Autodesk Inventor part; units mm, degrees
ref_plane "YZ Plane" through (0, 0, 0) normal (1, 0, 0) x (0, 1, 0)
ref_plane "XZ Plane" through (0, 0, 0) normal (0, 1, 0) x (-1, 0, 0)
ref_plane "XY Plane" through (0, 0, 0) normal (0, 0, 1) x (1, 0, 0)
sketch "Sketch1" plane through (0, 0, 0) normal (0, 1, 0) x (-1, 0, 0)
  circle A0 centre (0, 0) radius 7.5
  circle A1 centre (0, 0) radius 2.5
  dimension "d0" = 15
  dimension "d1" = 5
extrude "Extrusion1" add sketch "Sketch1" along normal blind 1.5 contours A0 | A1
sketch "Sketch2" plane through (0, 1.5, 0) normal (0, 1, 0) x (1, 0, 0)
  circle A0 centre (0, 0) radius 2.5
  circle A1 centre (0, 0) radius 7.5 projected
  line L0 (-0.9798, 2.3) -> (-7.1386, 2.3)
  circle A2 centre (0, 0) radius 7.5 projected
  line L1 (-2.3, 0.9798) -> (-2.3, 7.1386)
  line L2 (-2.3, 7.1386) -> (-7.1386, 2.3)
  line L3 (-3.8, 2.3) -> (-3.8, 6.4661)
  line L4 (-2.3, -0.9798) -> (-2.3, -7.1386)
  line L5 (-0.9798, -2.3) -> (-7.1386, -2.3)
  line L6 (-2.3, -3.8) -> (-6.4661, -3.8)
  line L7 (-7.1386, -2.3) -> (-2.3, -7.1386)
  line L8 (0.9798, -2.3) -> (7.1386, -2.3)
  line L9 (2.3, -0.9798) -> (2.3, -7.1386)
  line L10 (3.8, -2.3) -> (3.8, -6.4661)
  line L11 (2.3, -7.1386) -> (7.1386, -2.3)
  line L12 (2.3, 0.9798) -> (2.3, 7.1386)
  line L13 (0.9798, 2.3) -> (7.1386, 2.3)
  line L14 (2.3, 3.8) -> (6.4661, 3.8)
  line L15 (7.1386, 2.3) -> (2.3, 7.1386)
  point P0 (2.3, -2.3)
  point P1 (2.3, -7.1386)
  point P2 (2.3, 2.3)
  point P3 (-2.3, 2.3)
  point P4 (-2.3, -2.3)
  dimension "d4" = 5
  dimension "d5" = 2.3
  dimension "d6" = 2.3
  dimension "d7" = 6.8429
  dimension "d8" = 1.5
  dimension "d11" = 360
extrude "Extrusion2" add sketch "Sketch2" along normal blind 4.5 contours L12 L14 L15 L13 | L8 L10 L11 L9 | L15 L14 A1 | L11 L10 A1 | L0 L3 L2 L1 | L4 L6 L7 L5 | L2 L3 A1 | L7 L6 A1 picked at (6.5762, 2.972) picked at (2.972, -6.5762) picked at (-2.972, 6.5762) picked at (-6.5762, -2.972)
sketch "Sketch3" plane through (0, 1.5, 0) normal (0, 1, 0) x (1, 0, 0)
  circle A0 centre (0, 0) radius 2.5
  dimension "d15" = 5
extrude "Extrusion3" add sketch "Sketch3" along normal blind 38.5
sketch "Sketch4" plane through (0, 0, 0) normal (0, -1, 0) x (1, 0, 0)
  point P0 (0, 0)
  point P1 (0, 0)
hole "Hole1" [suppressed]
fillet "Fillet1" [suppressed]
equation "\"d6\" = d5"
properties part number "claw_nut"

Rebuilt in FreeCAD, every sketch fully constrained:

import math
import FreeCAD as App
import Part
import Sketcher

V = App.Vector
Q = App.Units.Quantity

doc = App.newDocument("Part")
params = doc.addObject("Spreadsheet::Sheet", "Params")
for row, (alias, value) in enumerate([
    ("sketch1_diameter", "15 mm"),
    ("pad1_length", "1.5 mm"),
    ("sketch2_width", "1.5 mm"),
    ("sketch2_radius", "7.5 mm"),
    ("pad2_length", "4.5 mm"),
    ("sketch3_diameter", "5 mm"),
    ("pad3_length", "38.5 mm"),
], start=1):
    params.set(f"A{row}", alias)
    params.set(f"B{row}", "=" + value)
    params.setAlias(f"B{row}", alias)

body = doc.addObject("PartDesign::Body", "Body")

sketch1 = body.newObject("Sketcher::SketchObject", "Sketch")
sketch1.AttachmentSupport = (doc.getObject("XZ_Plane"), [""])
sketch1.MapMode = "FlatFace"
sketch1.addGeometry(Part.Circle(V(0, 0, 0), V(0, 0, 1), 8), False)
sketch1.addConstraint([
    Sketcher.Constraint("Coincident", 0, 3, -1, 1),
    Sketcher.Constraint("Diameter", 0, Q("15 mm")),
])
sketch1.setExpression("Constraints[1]", "Params.sketch1_diameter")
pad1 = body.newObject("PartDesign::Pad", "Pad")
pad1.Profile = sketch1
pad1.setExpression("Length", "Params.pad1_length")
pad1.Reversed = True

sketch2 = body.newObject("Sketcher::SketchObject", "Sketch001")
sketch2.AttachmentSupport = (doc.getObject("XZ_Plane"), [""])
sketch2.MapMode = "FlatFace"
sketch2.AttachmentOffset = App.Placement(V(0, 0, -1.5), App.Rotation())
sketch2.addGeometry([
    Part.LineSegment(V(2.3, -3.8, 0), V(2.3, -2.3, 0)),
    Part.LineSegment(V(2.3, -2.3, 0), V(7.1, -2.3, 0)),
    Part.ArcOfCircle(Part.Circle(V(0, 0, 0), V(0, 0, 1), 7.5), math.radians(-30.44), math.radians(-17.86)),
    Part.LineSegment(V(6.5, -3.8, 0), V(2.3, -3.8, 0)),
    Part.LineSegment(V(3.8, 2.3, 0), V(2.3, 2.3, 0)),
    Part.LineSegment(V(2.3, 2.3, 0), V(2.3, 7.1, 0)),
    Part.ArcOfCircle(Part.Circle(V(0, 0, 0), V(0, 0, 1), 7.5), math.radians(59.56), math.radians(72.14)),
    Part.LineSegment(V(3.8, 6.5, 0), V(3.8, 2.3, 0)),
    Part.LineSegment(V(-3.8, -2.3, 0), V(-2.3, -2.3, 0)),
    Part.LineSegment(V(-2.3, -2.3, 0), V(-2.3, -7.1, 0)),
    Part.ArcOfCircle(Part.Circle(V(0, 0, 0), V(0, 0, 1), 7.5), math.radians(-120.44), math.radians(-107.86)),
    Part.LineSegment(V(-3.8, -6.5, 0), V(-3.8, -2.3, 0)),
    Part.LineSegment(V(-2.3, 3.8, 0), V(-2.3, 2.3, 0)),
    Part.LineSegment(V(-2.3, 2.3, 0), V(-7.1, 2.3, 0)),
    Part.ArcOfCircle(Part.Circle(V(0, 0, 0), V(0, 0, 1), 7.5), math.radians(149.56), math.radians(162.14)),
    Part.LineSegment(V(-6.5, 3.8, 0), V(-2.3, 3.8, 0)),
], False)
sketch2.addConstraint([
    Sketcher.Constraint("Coincident", 0, 2, 1, 1),
    Sketcher.Constraint("Coincident", 1, 2, 2, 2),
    Sketcher.Constraint("Coincident", 2, 1, 3, 1),
    Sketcher.Constraint("Coincident", 3, 2, 0, 1),
    Sketcher.Constraint("Coincident", 4, 2, 5, 1),
    Sketcher.Constraint("Coincident", 5, 2, 6, 2),
    Sketcher.Constraint("Coincident", 6, 1, 7, 1),
    Sketcher.Constraint("Coincident", 7, 2, 4, 1),
    Sketcher.Constraint("Coincident", 8, 2, 9, 1),
    Sketcher.Constraint("Coincident", 9, 2, 10, 2),
    Sketcher.Constraint("Coincident", 10, 1, 11, 1),
    Sketcher.Constraint("Coincident", 11, 2, 8, 1),
    Sketcher.Constraint("Coincident", 12, 2, 13, 1),
    Sketcher.Constraint("Coincident", 13, 2, 14, 2),
    Sketcher.Constraint("Coincident", 14, 1, 15, 1),
    Sketcher.Constraint("Coincident", 15, 2, 12, 1),
    Sketcher.Constraint("Vertical", 0),
    Sketcher.Constraint("Horizontal", 1),
    Sketcher.Constraint("Horizontal", 3),
    Sketcher.Constraint("Horizontal", 4),
    Sketcher.Constraint("Vertical", 5),
    Sketcher.Constraint("Vertical", 7),
    Sketcher.Constraint("Horizontal", 8),
    Sketcher.Constraint("Vertical", 9),
    Sketcher.Constraint("Vertical", 11),
    Sketcher.Constraint("Vertical", 12),
    Sketcher.Constraint("Horizontal", 13),
    Sketcher.Constraint("Horizontal", 15),
    Sketcher.Constraint("Coincident", 2, 3, -1, 1),
    Sketcher.Constraint("Coincident", 6, 3, -1, 1),
    Sketcher.Constraint("Coincident", 10, 3, -1, 1),
    Sketcher.Constraint("Coincident", 14, 3, -1, 1),
    Sketcher.Constraint("Equal", 2, 6),
    Sketcher.Constraint("Equal", 6, 10),
    Sketcher.Constraint("Equal", 10, 14),
    Sketcher.Constraint("Symmetric", 4, 2, 8, 2, -1, 1),
    Sketcher.Constraint("Symmetric", 0, 2, 12, 2, -1, 1),
    Sketcher.Constraint("Symmetric", 0, 2, 8, 2, -2),
    Sketcher.Constraint("Equal", 4, 8),
    Sketcher.Constraint("Equal", 3, 15),
    Sketcher.Constraint("Equal", 8, 0),
    Sketcher.Constraint("Equal", 13, 5),
    Sketcher.Constraint("DistanceX", 4, 2, 4, 1, Q("1.5 mm")),
    Sketcher.Constraint("DistanceX", -1, 1, 0, 2, Q("2.3 mm")),
    Sketcher.Constraint("Radius", 2, Q("7.5 mm")),
])
sketch2.setExpression("Constraints[42]", "Params.sketch2_width")
sketch2.setExpression("Constraints[44]", "Params.sketch2_radius")
pad2 = body.newObject("PartDesign::Pad", "Pad001")
pad2.Profile = sketch2
pad2.setExpression("Length", "Params.pad2_length")
pad2.Reversed = True

sketch3 = body.newObject("Sketcher::SketchObject", "Sketch002")
sketch3.AttachmentSupport = (doc.getObject("XZ_Plane"), [""])
sketch3.MapMode = "FlatFace"
sketch3.AttachmentOffset = App.Placement(V(0, 0, -1.5), App.Rotation())
sketch3.addGeometry(Part.Circle(V(0, 0, 0), V(0, 0, 1), 2.5), False)
sketch3.addConstraint([
    Sketcher.Constraint("Coincident", 0, 3, -1, 1),
    Sketcher.Constraint("Diameter", 0, Q("5 mm")),
])
sketch3.setExpression("Constraints[1]", "Params.sketch3_diameter")
pad3 = body.newObject("PartDesign::Pad", "Pad002")
pad3.Profile = sketch3
pad3.setExpression("Length", "Params.pad3_length")
pad3.Reversed = True

doc.recompute()
